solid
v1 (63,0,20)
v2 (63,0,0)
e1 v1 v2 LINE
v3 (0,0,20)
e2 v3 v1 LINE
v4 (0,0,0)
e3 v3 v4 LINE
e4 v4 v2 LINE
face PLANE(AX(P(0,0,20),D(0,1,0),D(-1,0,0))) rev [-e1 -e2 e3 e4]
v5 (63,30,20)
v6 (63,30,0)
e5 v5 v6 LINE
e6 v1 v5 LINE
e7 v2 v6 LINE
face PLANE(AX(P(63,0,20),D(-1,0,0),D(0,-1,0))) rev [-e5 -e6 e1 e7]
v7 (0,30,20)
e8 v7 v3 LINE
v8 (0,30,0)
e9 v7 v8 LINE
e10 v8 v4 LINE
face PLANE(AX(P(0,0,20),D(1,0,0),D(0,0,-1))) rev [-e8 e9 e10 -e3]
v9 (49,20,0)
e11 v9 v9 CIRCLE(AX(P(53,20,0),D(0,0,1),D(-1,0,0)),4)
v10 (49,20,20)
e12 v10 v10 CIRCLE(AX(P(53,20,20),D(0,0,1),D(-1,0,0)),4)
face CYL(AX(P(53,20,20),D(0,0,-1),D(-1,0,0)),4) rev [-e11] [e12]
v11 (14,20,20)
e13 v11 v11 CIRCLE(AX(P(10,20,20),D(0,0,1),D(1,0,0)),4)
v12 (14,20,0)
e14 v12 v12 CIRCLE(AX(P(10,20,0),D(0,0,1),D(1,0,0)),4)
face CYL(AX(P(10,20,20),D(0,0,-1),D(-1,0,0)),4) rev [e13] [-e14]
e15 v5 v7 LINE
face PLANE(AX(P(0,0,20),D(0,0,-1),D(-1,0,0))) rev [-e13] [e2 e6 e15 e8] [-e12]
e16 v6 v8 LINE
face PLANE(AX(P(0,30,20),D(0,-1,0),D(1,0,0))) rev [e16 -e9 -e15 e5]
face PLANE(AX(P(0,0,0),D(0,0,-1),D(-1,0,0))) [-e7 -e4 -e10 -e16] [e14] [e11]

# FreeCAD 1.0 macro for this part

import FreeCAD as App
import Part
import Sketcher

V = App.Vector
Q = App.Units.Quantity


def add_polygon(sketch, points):
    """Adds a closed chain of lines whose ends are joined by coincident constraints."""
    first, n = sketch.GeometryCount, len(points)
    for a, b in zip(points, points[1:] + points[:1]):
        sketch.addGeometry(Part.LineSegment(App.Vector(*a, 0), App.Vector(*b, 0)), False)
    for i in range(n):
        sketch.addConstraint(Sketcher.Constraint("Coincident", first + i, 2, first + (i + 1) % n, 1))

doc = App.newDocument("Part")
params = doc.addObject("Spreadsheet::Sheet", "Params")
for row, (alias, value) in enumerate([
    ("sketch1_diameter", "8 mm"),
    ("sketch1_width", "63 mm"),
    ("sketch1_height", "30 mm"),
    ("pad1_length", "20 mm"),
], start=1):
    params.set(f"A{row}", alias)
    params.set(f"B{row}", "=" + value)
    params.setAlias(f"B{row}", alias)

body = doc.addObject("PartDesign::Body", "Body")

# Sketch on XY plane
sketch1 = body.newObject("Sketcher::SketchObject", "Sketch")
sketch1.AttachmentSupport = (doc.getObject("XY_Plane"), [""])
sketch1.MapMode = "FlatFace"
add_polygon(sketch1, [(0, 30), (0, 0), (63, 0), (63, 30)])  # lines 0-3
sketch1.addGeometry(Part.Circle(V(10, 20, 0), V(0, 0, 1), 4), False)  # 4
sketch1.addGeometry(Part.Circle(V(53, 20, 0), V(0, 0, 1), 4), False)  # 5
sketch1.addConstraint(Sketcher.Constraint("Vertical", 0))
sketch1.addConstraint(Sketcher.Constraint("Horizontal", 1))
sketch1.addConstraint(Sketcher.Constraint("Vertical", 2))
sketch1.addConstraint(Sketcher.Constraint("Horizontal", 3))
sketch1.addConstraint(Sketcher.Constraint("Coincident", 0, 2, -1, 1))
sketch1.addConstraint(Sketcher.Constraint("Equal", 4, 5))
sketch1.addConstraint(Sketcher.Constraint("Horizontal", 4, 3, 5, 3))
sketch1.addConstraint(Sketcher.Constraint("Diameter", 4, Q("8 mm")))
sketch1.addConstraint(Sketcher.Constraint("DistanceX", 1, 1, 1, 2, Q("63 mm")))
sketch1.addConstraint(Sketcher.Constraint("DistanceY", 0, 2, 0, 1, Q("30 mm")))
sketch1.addConstraint(Sketcher.Constraint("DistanceX", -1, 1, 4, 3, Q("10 mm")))
sketch1.addConstraint(Sketcher.Constraint("DistanceY", -1, 1, 4, 3, Q("20 mm")))
sketch1.addConstraint(Sketcher.Constraint("DistanceX", -1, 1, 5, 3, Q("53 mm")))
sketch1.setExpression("Constraints[11]", "Params.sketch1_diameter")
sketch1.setExpression("Constraints[12]", "Params.sketch1_width")
sketch1.setExpression("Constraints[13]", "Params.sketch1_height")
pad1 = body.newObject("PartDesign::Pad", "Pad")
pad1.Profile = sketch1
pad1.setExpression("Length", "Params.pad1_length")

doc.recompute()
